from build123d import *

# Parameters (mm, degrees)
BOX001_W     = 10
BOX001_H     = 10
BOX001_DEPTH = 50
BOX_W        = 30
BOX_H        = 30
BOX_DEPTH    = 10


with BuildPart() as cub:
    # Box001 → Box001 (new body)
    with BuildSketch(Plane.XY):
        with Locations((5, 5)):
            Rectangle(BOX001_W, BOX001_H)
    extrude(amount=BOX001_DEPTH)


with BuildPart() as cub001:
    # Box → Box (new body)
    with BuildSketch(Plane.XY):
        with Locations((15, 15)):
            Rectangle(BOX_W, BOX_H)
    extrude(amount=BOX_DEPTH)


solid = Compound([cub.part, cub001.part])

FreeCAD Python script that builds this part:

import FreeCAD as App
import Part
import Sketcher
from FreeCAD import Vector
Q = App.Units.Quantity

doc = App.newDocument("Part")
body = doc.addObject("PartDesign::Body", "Body")

# Sketch on XY plane
sketch1 = body.newObject("Sketcher::SketchObject", "Sketch")
sketch1.AttachmentSupport = (doc.getObject("XY_Plane"), [""])
sketch1.MapMode = "FlatFace"
sketch1.addGeometry([
    Part.LineSegment(Vector(0, 10, 0), Vector(0, 0, 0)),
    Part.LineSegment(Vector(0, 0, 0), Vector(10, 0, 0)),
    Part.LineSegment(Vector(10, 0, 0), Vector(10, 10, 0)),
    Part.LineSegment(Vector(10, 10, 0), Vector(0, 10, 0)),
], False)
sketch1.addConstraint([
    Sketcher.Constraint("Coincident", 0, 2, 1, 1),
    Sketcher.Constraint("Coincident", 1, 2, 2, 1),
    Sketcher.Constraint("Coincident", 2, 2, 3, 1),
    Sketcher.Constraint("Coincident", 3, 2, 0, 1),
    Sketcher.Constraint("Vertical", 0),
    Sketcher.Constraint("Horizontal", 1),
    Sketcher.Constraint("Vertical", 2),
    Sketcher.Constraint("Horizontal", 3),
    Sketcher.Constraint("Coincident", 0, 2, -1, 1),
    Sketcher.Constraint("Equal", 3, 0),
    Sketcher.Constraint("DistanceX", 1, 1, 1, 2, Q("10 mm")),
])
pad1 = body.newObject("PartDesign::Pad", "Pad")
pad1.Profile = sketch1
pad1.Length = 50
body2 = doc.addObject("PartDesign::Body", "Body001")

# Sketch on XY plane
sketch2 = body2.newObject("Sketcher::SketchObject", "Sketch001")
sketch2.AttachmentSupport = (doc.getObject("XY_Plane001"), [""])
sketch2.MapMode = "FlatFace"
sketch2.addGeometry([
    Part.LineSegment(Vector(0, 30, 0), Vector(0, 0, 0)),
    Part.LineSegment(Vector(0, 0, 0), Vector(30, 0, 0)),
    Part.LineSegment(Vector(30, 0, 0), Vector(30, 30, 0)),
    Part.LineSegment(Vector(30, 30, 0), Vector(0, 30, 0)),
], False)
sketch2.addConstraint([
    Sketcher.Constraint("Coincident", 0, 2, 1, 1),
    Sketcher.Constraint("Coincident", 1, 2, 2, 1),
    Sketcher.Constraint("Coincident", 2, 2, 3, 1),
    Sketcher.Constraint("Coincident", 3, 2, 0, 1),
    Sketcher.Constraint("Vertical", 0),
    Sketcher.Constraint("Horizontal", 1),
    Sketcher.Constraint("Vertical", 2),
    Sketcher.Constraint("Horizontal", 3),
    Sketcher.Constraint("Coincident", 0, 2, -1, 1),
    Sketcher.Constraint("Equal", 3, 0),
    Sketcher.Constraint("DistanceX", 1, 1, 1, 2, Q("30 mm")),
])
pad2 = body2.newObject("PartDesign::Pad", "Pad001")
pad2.Profile = sketch2
pad2.Length = 10

doc.recompute()
